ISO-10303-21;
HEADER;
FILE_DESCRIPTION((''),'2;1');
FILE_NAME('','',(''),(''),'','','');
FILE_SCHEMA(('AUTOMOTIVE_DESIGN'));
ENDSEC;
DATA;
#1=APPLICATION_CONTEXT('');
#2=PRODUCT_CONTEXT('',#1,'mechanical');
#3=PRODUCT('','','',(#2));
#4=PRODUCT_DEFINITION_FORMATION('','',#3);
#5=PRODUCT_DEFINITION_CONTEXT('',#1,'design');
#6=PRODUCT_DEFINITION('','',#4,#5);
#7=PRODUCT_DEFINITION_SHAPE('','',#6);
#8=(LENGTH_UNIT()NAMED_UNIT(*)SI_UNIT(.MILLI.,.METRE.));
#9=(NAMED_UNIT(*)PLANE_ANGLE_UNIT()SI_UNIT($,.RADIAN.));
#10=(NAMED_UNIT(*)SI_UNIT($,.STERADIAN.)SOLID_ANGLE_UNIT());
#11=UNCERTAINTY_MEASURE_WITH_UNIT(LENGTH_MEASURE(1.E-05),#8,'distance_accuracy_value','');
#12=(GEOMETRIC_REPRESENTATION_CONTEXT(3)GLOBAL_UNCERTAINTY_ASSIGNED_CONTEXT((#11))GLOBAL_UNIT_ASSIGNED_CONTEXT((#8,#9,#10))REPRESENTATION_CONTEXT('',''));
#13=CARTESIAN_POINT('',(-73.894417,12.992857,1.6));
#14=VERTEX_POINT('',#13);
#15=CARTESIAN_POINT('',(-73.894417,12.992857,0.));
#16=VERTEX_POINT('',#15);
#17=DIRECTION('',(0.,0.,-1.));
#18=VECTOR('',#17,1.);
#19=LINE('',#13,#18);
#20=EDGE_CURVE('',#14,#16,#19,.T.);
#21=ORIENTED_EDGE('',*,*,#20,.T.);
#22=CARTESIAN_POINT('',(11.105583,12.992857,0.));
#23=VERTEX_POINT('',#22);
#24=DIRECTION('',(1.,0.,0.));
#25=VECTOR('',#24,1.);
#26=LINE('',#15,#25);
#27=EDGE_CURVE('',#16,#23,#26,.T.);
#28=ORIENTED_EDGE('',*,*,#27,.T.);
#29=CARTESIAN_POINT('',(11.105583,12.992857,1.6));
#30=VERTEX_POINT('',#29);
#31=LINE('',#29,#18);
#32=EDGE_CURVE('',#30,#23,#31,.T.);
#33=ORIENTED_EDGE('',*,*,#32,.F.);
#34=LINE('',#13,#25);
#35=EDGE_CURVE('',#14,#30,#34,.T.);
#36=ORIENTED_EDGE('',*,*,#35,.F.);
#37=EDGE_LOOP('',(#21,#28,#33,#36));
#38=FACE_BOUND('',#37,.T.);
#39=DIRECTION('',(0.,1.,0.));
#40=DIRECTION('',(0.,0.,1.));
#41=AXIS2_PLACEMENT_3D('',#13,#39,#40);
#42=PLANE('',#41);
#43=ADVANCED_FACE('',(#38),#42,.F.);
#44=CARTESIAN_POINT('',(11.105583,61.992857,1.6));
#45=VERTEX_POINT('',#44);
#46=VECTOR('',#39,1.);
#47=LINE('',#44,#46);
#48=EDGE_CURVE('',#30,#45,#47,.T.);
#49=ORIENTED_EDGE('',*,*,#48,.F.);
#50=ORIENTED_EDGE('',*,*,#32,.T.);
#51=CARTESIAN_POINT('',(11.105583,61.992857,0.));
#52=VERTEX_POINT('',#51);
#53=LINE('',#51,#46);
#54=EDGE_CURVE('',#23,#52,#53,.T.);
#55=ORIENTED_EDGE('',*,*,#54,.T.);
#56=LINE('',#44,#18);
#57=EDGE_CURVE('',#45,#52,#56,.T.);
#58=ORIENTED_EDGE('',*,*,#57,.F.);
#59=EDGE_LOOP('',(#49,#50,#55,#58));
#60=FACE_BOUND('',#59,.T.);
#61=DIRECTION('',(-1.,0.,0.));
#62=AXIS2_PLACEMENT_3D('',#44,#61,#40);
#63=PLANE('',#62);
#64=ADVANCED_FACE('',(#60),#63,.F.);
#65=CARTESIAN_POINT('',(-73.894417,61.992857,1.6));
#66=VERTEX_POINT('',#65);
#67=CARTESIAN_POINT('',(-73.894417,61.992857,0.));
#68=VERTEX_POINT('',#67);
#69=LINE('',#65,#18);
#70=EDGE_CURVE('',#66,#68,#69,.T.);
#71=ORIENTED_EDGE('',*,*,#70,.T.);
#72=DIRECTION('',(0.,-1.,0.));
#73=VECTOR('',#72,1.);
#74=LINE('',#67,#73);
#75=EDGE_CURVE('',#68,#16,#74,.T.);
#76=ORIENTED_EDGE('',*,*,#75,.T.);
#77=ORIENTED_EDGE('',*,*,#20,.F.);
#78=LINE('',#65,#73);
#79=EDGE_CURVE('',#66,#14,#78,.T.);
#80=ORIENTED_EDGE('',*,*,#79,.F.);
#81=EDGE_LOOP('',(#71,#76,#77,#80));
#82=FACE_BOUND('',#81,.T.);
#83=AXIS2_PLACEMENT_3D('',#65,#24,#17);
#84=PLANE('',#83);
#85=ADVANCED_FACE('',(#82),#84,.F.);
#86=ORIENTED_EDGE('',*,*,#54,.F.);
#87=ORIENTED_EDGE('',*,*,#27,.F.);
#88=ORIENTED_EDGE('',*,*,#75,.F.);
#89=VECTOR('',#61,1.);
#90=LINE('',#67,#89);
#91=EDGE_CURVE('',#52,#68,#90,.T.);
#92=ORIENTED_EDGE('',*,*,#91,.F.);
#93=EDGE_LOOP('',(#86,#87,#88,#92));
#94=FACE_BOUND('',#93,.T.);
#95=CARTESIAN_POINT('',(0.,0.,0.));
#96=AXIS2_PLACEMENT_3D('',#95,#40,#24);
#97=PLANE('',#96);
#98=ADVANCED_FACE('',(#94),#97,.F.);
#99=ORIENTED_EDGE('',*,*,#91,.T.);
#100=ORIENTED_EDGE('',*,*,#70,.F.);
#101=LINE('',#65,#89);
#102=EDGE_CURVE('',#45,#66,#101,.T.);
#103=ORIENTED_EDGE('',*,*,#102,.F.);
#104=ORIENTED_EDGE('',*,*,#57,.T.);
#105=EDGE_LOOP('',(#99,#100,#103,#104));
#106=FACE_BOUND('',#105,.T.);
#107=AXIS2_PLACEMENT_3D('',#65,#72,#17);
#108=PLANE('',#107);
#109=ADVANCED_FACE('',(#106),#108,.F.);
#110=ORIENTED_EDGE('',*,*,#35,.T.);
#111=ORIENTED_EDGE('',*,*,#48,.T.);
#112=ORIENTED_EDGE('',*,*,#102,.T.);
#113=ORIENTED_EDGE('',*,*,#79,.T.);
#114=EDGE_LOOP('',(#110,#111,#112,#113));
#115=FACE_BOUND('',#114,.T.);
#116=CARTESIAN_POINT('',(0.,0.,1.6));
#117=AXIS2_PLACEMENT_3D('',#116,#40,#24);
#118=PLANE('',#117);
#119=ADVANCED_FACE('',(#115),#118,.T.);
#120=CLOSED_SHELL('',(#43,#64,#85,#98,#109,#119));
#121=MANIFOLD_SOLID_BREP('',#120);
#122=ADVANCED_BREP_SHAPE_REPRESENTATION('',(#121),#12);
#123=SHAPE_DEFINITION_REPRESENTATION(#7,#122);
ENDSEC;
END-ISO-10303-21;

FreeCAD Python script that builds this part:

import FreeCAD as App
import Part
import Sketcher


def add_polygon(sketch, points):
    """Adds a closed chain of lines whose ends are joined by coincident constraints."""
    first, n = sketch.GeometryCount, len(points)
    for a, b in zip(points, points[1:] + points[:1]):
        sketch.addGeometry(Part.LineSegment(App.Vector(*a, 0), App.Vector(*b, 0)), False)
    for i in range(n):
        sketch.addConstraint(Sketcher.Constraint("Coincident", first + i, 2, first + (i + 1) % n, 1))

doc = App.newDocument("Part")
body = doc.addObject("PartDesign::Body", "Body")

sketch1 = body.newObject("Sketcher::SketchObject", "Sketch")
sketch1.AttachmentSupport = (doc.getObject("XY_Plane"), [""])
sketch1.MapMode = "FlatFace"
add_polygon(sketch1, [(-74, 62), (-74, 13), (11, 13), (11, 62)])
sketch1.addConstraint([
    Sketcher.Constraint("Vertical", 0),
    Sketcher.Constraint("Horizontal", 1),
    Sketcher.Constraint("Vertical", 2),
    Sketcher.Constraint("Horizontal", 3),
    Sketcher.Constraint("DistanceX", 1, 1, 1, 2, 85.0),
    Sketcher.Constraint("DistanceY", 0, 2, 0, 1, 49.0),
    Sketcher.Constraint("DistanceX", 0, 2, -1, 1, 73.894417),
    Sketcher.Constraint("DistanceY", -1, 1, 0, 2, 12.992857),
])
pad1 = body.newObject("PartDesign::Pad", "Pad")
pad1.Profile = sketch1
pad1.Length = 1.6

doc.recompute()
